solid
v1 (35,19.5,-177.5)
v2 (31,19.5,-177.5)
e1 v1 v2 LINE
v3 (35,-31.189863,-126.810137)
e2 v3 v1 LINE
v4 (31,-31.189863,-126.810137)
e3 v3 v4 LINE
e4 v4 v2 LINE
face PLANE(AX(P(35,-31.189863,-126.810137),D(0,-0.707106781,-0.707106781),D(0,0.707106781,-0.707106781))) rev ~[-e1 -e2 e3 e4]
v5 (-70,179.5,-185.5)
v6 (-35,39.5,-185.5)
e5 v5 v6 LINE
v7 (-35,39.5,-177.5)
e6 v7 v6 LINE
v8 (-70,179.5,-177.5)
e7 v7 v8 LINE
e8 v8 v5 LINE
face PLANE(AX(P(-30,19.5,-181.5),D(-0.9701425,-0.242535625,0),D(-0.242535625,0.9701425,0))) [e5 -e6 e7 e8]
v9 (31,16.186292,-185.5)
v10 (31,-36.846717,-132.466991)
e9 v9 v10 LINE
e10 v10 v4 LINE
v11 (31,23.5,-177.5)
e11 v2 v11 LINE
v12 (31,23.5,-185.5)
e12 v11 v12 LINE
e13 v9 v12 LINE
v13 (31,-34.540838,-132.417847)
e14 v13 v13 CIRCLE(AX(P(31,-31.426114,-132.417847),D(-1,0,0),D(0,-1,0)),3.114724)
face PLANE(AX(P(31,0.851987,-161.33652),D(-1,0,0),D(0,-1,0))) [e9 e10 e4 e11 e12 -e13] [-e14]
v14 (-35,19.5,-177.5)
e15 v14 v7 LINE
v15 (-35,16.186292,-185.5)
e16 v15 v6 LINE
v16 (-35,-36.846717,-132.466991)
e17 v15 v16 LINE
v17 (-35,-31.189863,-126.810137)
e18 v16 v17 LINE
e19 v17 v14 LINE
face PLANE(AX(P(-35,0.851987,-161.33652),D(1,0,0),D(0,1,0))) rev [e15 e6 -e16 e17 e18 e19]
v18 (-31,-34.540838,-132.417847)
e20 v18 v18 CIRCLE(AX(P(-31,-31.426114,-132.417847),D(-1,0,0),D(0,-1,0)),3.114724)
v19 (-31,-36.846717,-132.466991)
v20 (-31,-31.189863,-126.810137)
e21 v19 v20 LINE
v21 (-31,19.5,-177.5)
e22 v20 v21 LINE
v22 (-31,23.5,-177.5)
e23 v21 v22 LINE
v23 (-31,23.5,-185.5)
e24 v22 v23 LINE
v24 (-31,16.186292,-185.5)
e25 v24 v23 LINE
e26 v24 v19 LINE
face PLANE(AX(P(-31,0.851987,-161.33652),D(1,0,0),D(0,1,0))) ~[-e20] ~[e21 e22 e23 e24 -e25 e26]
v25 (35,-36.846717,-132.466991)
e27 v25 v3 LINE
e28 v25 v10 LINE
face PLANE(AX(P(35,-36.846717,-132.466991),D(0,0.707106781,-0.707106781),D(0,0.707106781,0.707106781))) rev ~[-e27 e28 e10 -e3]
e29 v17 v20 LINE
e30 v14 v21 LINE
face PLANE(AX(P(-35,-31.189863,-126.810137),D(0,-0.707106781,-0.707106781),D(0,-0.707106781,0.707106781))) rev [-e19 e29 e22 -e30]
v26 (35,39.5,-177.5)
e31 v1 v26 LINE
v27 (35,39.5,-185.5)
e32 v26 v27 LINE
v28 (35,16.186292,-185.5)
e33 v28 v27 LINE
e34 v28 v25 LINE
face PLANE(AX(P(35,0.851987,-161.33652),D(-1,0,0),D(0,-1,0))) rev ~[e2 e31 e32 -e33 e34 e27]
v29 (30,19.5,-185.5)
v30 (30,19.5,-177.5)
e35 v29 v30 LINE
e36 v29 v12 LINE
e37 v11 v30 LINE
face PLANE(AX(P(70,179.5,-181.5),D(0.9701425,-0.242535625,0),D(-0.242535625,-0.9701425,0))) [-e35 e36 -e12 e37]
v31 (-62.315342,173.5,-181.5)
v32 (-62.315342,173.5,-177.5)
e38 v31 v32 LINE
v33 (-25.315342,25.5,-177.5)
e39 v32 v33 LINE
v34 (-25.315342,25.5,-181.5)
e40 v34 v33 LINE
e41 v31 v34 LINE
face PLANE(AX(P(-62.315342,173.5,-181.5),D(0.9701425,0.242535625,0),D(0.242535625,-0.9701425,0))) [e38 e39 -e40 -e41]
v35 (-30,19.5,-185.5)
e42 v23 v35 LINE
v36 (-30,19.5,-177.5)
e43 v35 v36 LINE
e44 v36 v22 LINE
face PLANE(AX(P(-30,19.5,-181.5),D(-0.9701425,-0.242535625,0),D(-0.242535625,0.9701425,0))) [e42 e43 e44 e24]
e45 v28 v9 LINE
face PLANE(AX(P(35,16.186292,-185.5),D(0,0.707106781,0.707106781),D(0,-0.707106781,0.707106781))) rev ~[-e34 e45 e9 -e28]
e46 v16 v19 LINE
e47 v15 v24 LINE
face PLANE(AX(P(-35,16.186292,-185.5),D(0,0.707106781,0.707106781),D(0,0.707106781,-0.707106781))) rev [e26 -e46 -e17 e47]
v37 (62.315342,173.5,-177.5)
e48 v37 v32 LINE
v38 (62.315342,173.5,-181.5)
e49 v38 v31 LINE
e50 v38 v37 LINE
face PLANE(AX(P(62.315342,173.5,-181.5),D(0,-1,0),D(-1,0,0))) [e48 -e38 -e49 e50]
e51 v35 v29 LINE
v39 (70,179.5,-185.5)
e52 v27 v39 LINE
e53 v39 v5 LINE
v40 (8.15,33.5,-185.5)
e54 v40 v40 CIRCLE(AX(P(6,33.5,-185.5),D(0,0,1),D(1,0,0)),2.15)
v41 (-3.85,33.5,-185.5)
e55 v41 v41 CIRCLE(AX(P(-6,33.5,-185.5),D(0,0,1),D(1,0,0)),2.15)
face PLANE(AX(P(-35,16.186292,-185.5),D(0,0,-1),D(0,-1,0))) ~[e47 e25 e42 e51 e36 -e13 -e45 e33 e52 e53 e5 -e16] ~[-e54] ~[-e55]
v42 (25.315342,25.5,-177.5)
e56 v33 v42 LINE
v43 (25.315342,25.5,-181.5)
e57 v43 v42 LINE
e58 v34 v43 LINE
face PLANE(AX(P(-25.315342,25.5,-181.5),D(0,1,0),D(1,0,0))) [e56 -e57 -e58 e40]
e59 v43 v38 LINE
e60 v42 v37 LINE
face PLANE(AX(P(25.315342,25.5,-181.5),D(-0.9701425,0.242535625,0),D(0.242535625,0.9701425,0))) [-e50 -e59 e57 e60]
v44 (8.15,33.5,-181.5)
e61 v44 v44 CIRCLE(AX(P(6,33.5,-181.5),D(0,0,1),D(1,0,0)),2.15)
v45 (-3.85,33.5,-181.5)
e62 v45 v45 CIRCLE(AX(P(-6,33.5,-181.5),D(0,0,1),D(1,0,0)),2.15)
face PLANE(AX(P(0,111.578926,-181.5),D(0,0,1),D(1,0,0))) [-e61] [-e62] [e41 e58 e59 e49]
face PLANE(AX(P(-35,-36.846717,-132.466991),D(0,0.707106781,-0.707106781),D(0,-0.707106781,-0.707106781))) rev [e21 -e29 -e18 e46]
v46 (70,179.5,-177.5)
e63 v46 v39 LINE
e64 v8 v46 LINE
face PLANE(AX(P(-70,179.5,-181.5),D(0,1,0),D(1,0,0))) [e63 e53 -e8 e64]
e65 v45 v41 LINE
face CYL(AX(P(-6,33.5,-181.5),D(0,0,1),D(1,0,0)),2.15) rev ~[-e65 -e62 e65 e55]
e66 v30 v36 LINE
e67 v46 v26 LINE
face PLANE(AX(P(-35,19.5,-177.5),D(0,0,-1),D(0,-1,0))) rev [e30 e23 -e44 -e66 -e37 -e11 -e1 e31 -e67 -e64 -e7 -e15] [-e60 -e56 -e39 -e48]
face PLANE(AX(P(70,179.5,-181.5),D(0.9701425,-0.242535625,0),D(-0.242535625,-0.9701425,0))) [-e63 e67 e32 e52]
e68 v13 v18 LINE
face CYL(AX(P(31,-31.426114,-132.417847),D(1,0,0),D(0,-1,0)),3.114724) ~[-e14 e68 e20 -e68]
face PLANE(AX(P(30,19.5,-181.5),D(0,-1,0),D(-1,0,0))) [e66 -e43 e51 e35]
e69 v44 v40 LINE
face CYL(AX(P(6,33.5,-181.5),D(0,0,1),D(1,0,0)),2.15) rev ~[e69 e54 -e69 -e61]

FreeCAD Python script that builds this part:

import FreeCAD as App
import Part
import Sketcher

V = App.Vector
Q = App.Units.Quantity

doc = App.newDocument("Part")
body = doc.addObject("PartDesign::Body", "Body")

sketch1 = body.newObject("Sketcher::SketchObject", "Sketch")
sketch1.AttachmentSupport = (doc.getObject("XY_Plane"), [""])
sketch1.MapMode = "FlatFace"
sketch1.addGeometry([
    Part.LineSegment(V(70, 160, 0), V(-70, 160, 0)),
    Part.LineSegment(V(-70, 160, 0), V(-30, 0, 0)),
    Part.LineSegment(V(-30, 0, 0), V(30, 0, 0)),
    Part.LineSegment(V(30, 0, 0), V(70, 160, 0)),
], False)
sketch1.addConstraint([
    Sketcher.Constraint("Coincident", 0, 2, 1, 1),
    Sketcher.Constraint("Coincident", 1, 2, 2, 1),
    Sketcher.Constraint("Coincident", 2, 2, 3, 1),
    Sketcher.Constraint("Coincident", 3, 2, 0, 1),
    Sketcher.Constraint("Horizontal", 0),
    Sketcher.Constraint("Horizontal", 2),
    Sketcher.Constraint("Symmetric", 1, 2, 2, 2, -1, 1),
    Sketcher.Constraint("Equal", 1, 3),
    Sketcher.Constraint("DistanceX", 0, 2, 0, 1, 140.0),
    Sketcher.Constraint("DistanceX", 2, 1, 2, 2, 60.0),
    Sketcher.Constraint("DistanceY", -1, 1, 0, 2, 160.0),
])
pad1 = body.newObject("PartDesign::Pad", "Pad")
pad1.Profile = sketch1
pad1.Length = 4

sketch2 = body.newObject("Sketcher::SketchObject", "Sketch001")
sketch2.AttachmentSupport = (doc.getObject("XY_Plane"), [""])
sketch2.MapMode = "FlatFace"
sketch2.AttachmentOffset = App.Placement(V(0, 0, 4), App.Rotation())
sketch2.addGeometry([
    Part.LineSegment(V(-70, 160, 0), V(-30, 0, 0)),
    Part.LineSegment(V(-30, 0, 0), V(30, 0, 0)),
    Part.LineSegment(V(30, 0, 0), V(70, 160, 0)),
    Part.LineSegment(V(70, 160, 0), V(-70, 160, 0)),
    Part.LineSegment(V(-62.315342, 154, 0), V(62.315342, 154, 0)),
    Part.LineSegment(V(62.315342, 154, 0), V(25.315342, 6, 0)),
    Part.LineSegment(V(25.315342, 6, 0), V(-25.315342, 6, 0)),
    Part.LineSegment(V(-25.315342, 6, 0), V(-62.315342, 154, 0)),
], False)
sketch2.addConstraint([
    Sketcher.Constraint("Coincident", 0, 2, 1, 1),
    Sketcher.Constraint("Coincident", 1, 2, 2, 1),
    Sketcher.Constraint("Coincident", 2, 2, 3, 1),
    Sketcher.Constraint("Coincident", 3, 2, 0, 1),
    Sketcher.Constraint("Coincident", 4, 2, 5, 1),
    Sketcher.Constraint("Coincident", 5, 2, 6, 1),
    Sketcher.Constraint("Coincident", 6, 2, 7, 1),
    Sketcher.Constraint("Coincident", 7, 2, 4, 1),
    Sketcher.Constraint("Horizontal", 1),
    Sketcher.Constraint("Horizontal", 3),
    Sketcher.Constraint("Horizontal", 4),
    Sketcher.Constraint("Horizontal", 6),
    Sketcher.Constraint("Symmetric", 0, 2, 1, 2, -1, 1),
    Sketcher.Constraint("Parallel", 2, 5),
    Sketcher.Constraint("Parallel", 0, 7),
    Sketcher.Constraint("Equal", 0, 2),
    Sketcher.Constraint("DistanceX", 1, 1, 1, 2, 60.0),
    Sketcher.Constraint("DistanceX", 3, 2, 3, 1, 140.0),
    Sketcher.Constraint("DistanceY", -1, 1, 2, 2, 160.0),
    Sketcher.Constraint("DistanceY", -1, 1, 4, 2, 154.0),
    Sketcher.Constraint("DistanceY", -1, 1, 5, 2, 6.0),
    Sketcher.Constraint("DistanceX", 4, 1, 4, 2, 124.630684),
    Sketcher.Constraint("DistanceX", 3, 2, 4, 2, 132.315342),
])
pad2 = body.newObject("PartDesign::Pad", "Pad001")
pad2.Profile = sketch2
pad2.Length = 4

sketch3 = body.newObject("Sketcher::SketchObject", "Sketch002")
sketch3.AttachmentSupport = (doc.getObject("YZ_Plane"), [""])
sketch3.MapMode = "FlatFace"
sketch3.AttachmentOffset = App.Placement(V(0, 0, 35), App.Rotation())
sketch3.addGeometry([
    Part.LineSegment(V(-3.313708, 0, 0), V(21, 0, 0)),
    Part.LineSegment(V(21, 0, 0), V(21, 8, 0)),
    Part.LineSegment(V(21, 8, 0), V(0, 8, 0)),
    Part.LineSegment(V(0, 8, 0), V(-50.689863, 58.689863, 0)),
    Part.LineSegment(V(-50.689863, 58.689863, 0), V(-56.346717, 53.033009, 0)),
    Part.LineSegment(V(-56.346717, 53.033009, 0), V(-3.313708, 0, 0)),
], False)
sketch3.addConstraint([
    Sketcher.Constraint("Coincident", 0, 2, 1, 1),
    Sketcher.Constraint("Coincident", 1, 2, 2, 1),
    Sketcher.Constraint("Coincident", 2, 2, 3, 1),
    Sketcher.Constraint("Coincident", 3, 2, 4, 1),
    Sketcher.Constraint("Coincident", 4, 2, 5, 1),
    Sketcher.Constraint("Coincident", 5, 2, 0, 1),
    Sketcher.Constraint("Horizontal", 0),
    Sketcher.Constraint("Vertical", 1),
    Sketcher.Constraint("Horizontal", 2),
    Sketcher.Constraint("PointOnObject", 0, 2, -1),
    Sketcher.Constraint("PointOnObject", 2, 2, -2),
    Sketcher.Constraint("Perpendicular", 3, 4),
    Sketcher.Constraint("Perpendicular", 4, 5),
    Sketcher.Constraint("DistanceX", 2, 2, 2, 1, 21.0),
    Sketcher.Constraint("DistanceY", 1, 1, 1, 2, 8.0),
    Sketcher.Constraint("Angle", 3, Q("135 deg")),
    Sketcher.Constraint("Distance", 4, 8.0),
    Sketcher.Constraint("Distance", 5, 75.000001),
])
pad3 = body.newObject("PartDesign::Pad", "Pad002")
pad3.Profile = sketch3
pad3.Length = 4
pad3.Reversed = True
doc.recompute()

mirrored = body.newObject("PartDesign::Mirrored", "Mirrored")
mirrored.Originals = [pad3]
mirrored.MirrorPlane = (doc.getObject("YZ_Plane"), [""])
body.Tip = mirrored

sketch4 = body.newObject("Sketcher::SketchObject", "Sketch003")
sketch4.AttachmentSupport = (doc.getObject("YZ_Plane"), [""])
sketch4.MapMode = "FlatFace"
sketch4.AttachmentOffset = App.Placement(V(0, 0, 31), App.Rotation())
sketch4.addGeometry(Part.Circle(V(-50.926114, 53.082153, 0), V(0, 0, 1), 3.114724), False)
sketch4.addConstraint([
    Sketcher.Constraint("Diameter", 0, 6.229448),
    Sketcher.Constraint("DistanceX", 0, 3, -1, 1, 50.926114),
    Sketcher.Constraint("DistanceY", -1, 1, 0, 3, 53.082153),
])
pad4 = body.newObject("PartDesign::Pad", "Pad003")
pad4.Profile = sketch4
pad4.Length = 62
pad4.Reversed = True

sketch5 = body.newObject("Sketcher::SketchObject", "Sketch004")
sketch5.AttachmentSupport = (doc.getObject("XY_Plane"), [""])
sketch5.MapMode = "FlatFace"
sketch5.AttachmentOffset = App.Placement(V(0, 0, 4), App.Rotation())
sketch5.addGeometry([
    Part.Circle(V(-6, 14, 0), V(0, 0, 1), 2.15),
    Part.Circle(V(6, 14, 0), V(0, 0, 1), 2.15),
], False)
sketch5.addConstraint([
    Sketcher.Constraint("Equal", 0, 1),
    Sketcher.Constraint("Symmetric", 0, 3, 1, 3, -2),
    Sketcher.Constraint("Diameter", 0, 4.3),
    Sketcher.Constraint("DistanceX", 0, 3, -1, 1, 6.0),
    Sketcher.Constraint("DistanceY", -1, 1, 0, 3, 14.0),
])
pocket1 = body.newObject("PartDesign::Pocket", "Pocket")
pocket1.Profile = sketch5
pocket1.Type = "ThroughAll"
body2 = doc.addObject("PartDesign::Body", "Body001")
doc.recompute()

body.Placement = App.Placement(V(0, 19.5, -185.5), App.Rotation(V(0, 0, 1), 0))
boolean = body2.newObject("PartDesign::Boolean", "Boolean")
boolean.Type = "Fuse"
boolean.addObjects([body])

doc.recompute()
